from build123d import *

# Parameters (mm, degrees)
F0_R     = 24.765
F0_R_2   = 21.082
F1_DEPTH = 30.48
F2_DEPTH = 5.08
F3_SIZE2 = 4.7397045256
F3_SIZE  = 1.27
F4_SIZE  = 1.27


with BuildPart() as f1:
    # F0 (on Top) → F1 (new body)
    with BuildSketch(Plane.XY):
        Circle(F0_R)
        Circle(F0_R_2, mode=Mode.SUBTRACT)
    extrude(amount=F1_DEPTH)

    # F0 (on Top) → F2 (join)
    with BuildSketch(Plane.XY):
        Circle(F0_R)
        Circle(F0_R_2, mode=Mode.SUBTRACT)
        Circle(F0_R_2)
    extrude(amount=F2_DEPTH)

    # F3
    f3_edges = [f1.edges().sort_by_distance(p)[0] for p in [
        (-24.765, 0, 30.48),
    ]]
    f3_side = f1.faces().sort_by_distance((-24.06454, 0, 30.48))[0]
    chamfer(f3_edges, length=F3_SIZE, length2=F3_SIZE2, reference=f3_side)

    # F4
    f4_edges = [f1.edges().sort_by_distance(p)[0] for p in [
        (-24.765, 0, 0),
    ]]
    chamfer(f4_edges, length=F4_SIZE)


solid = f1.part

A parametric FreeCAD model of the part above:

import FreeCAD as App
import Part
import Sketcher
Q = App.Units.Quantity


def edges_at(feature, points):
    """Names of the edges that pass closest to the given points."""
    edges = feature.Shape.Edges
    near = lambda p: min(range(len(edges)), key=lambda i: edges[i].distToShape(Part.Vertex(*p))[0])
    return sorted({f"Edge{near(p) + 1}" for p in points})

doc = App.newDocument("Part")
body = doc.addObject("PartDesign::Body", "Body")

# Sketch on XY plane
sketch1 = body.newObject("Sketcher::SketchObject", "Sketch")
sketch1.AttachmentSupport = (doc.getObject("XY_Plane"), [""])
sketch1.MapMode = "FlatFace"
sketch1.addGeometry([
    Part.Circle(App.Vector(0, 0, 0), App.Vector(0, 0, 1), 25),
    Part.Circle(App.Vector(0, 0, 0), App.Vector(0, 0, 1), 21),
], False)
sketch1.addConstraint([
    Sketcher.Constraint("Coincident", 0, 3, -1, 1),
    Sketcher.Constraint("Coincident", 1, 3, -1, 1),
    Sketcher.Constraint("Diameter", 0, Q("1.95 in")),
    Sketcher.Constraint("Diameter", 1, Q("1.66 in")),
])
pad1 = body.newObject("PartDesign::Pad", "Pad")
pad1.Profile = sketch1
pad1.Length = Q("1.2 in")

# Sketch on XY plane
sketch2 = body.newObject("Sketcher::SketchObject", "Sketch001")
sketch2.AttachmentSupport = (doc.getObject("XY_Plane"), [""])
sketch2.MapMode = "FlatFace"
sketch2.addGeometry(Part.Circle(App.Vector(0, 0, 0), App.Vector(0, 0, 1), 25), False)
sketch2.addConstraint([
    Sketcher.Constraint("Coincident", 0, 3, -1, 1),
    Sketcher.Constraint("Diameter", 0, Q("1.95 in")),
])
pad2 = body.newObject("PartDesign::Pad", "Pad001")
pad2.Profile = sketch2
pad2.Length = Q("0.2 in")
doc.recompute()

chamfer = body.newObject("PartDesign::Chamfer", "Chamfer")
chamfer.Base = (pad2, edges_at(pad2, [(-24.765, 0, 30.48)]))
chamfer.ChamferType = "Two distances"
chamfer.Size = Q("0.05 in")
chamfer.Size2 = 4.739705
chamfer.FlipDirection = True
doc.recompute()

chamfer2 = body.newObject("PartDesign::Chamfer", "Chamfer001")
chamfer2.Base = (chamfer, edges_at(chamfer, [(-24.765, 0, 0)]))
chamfer2.Size = Q("0.05 in")

doc.recompute()
